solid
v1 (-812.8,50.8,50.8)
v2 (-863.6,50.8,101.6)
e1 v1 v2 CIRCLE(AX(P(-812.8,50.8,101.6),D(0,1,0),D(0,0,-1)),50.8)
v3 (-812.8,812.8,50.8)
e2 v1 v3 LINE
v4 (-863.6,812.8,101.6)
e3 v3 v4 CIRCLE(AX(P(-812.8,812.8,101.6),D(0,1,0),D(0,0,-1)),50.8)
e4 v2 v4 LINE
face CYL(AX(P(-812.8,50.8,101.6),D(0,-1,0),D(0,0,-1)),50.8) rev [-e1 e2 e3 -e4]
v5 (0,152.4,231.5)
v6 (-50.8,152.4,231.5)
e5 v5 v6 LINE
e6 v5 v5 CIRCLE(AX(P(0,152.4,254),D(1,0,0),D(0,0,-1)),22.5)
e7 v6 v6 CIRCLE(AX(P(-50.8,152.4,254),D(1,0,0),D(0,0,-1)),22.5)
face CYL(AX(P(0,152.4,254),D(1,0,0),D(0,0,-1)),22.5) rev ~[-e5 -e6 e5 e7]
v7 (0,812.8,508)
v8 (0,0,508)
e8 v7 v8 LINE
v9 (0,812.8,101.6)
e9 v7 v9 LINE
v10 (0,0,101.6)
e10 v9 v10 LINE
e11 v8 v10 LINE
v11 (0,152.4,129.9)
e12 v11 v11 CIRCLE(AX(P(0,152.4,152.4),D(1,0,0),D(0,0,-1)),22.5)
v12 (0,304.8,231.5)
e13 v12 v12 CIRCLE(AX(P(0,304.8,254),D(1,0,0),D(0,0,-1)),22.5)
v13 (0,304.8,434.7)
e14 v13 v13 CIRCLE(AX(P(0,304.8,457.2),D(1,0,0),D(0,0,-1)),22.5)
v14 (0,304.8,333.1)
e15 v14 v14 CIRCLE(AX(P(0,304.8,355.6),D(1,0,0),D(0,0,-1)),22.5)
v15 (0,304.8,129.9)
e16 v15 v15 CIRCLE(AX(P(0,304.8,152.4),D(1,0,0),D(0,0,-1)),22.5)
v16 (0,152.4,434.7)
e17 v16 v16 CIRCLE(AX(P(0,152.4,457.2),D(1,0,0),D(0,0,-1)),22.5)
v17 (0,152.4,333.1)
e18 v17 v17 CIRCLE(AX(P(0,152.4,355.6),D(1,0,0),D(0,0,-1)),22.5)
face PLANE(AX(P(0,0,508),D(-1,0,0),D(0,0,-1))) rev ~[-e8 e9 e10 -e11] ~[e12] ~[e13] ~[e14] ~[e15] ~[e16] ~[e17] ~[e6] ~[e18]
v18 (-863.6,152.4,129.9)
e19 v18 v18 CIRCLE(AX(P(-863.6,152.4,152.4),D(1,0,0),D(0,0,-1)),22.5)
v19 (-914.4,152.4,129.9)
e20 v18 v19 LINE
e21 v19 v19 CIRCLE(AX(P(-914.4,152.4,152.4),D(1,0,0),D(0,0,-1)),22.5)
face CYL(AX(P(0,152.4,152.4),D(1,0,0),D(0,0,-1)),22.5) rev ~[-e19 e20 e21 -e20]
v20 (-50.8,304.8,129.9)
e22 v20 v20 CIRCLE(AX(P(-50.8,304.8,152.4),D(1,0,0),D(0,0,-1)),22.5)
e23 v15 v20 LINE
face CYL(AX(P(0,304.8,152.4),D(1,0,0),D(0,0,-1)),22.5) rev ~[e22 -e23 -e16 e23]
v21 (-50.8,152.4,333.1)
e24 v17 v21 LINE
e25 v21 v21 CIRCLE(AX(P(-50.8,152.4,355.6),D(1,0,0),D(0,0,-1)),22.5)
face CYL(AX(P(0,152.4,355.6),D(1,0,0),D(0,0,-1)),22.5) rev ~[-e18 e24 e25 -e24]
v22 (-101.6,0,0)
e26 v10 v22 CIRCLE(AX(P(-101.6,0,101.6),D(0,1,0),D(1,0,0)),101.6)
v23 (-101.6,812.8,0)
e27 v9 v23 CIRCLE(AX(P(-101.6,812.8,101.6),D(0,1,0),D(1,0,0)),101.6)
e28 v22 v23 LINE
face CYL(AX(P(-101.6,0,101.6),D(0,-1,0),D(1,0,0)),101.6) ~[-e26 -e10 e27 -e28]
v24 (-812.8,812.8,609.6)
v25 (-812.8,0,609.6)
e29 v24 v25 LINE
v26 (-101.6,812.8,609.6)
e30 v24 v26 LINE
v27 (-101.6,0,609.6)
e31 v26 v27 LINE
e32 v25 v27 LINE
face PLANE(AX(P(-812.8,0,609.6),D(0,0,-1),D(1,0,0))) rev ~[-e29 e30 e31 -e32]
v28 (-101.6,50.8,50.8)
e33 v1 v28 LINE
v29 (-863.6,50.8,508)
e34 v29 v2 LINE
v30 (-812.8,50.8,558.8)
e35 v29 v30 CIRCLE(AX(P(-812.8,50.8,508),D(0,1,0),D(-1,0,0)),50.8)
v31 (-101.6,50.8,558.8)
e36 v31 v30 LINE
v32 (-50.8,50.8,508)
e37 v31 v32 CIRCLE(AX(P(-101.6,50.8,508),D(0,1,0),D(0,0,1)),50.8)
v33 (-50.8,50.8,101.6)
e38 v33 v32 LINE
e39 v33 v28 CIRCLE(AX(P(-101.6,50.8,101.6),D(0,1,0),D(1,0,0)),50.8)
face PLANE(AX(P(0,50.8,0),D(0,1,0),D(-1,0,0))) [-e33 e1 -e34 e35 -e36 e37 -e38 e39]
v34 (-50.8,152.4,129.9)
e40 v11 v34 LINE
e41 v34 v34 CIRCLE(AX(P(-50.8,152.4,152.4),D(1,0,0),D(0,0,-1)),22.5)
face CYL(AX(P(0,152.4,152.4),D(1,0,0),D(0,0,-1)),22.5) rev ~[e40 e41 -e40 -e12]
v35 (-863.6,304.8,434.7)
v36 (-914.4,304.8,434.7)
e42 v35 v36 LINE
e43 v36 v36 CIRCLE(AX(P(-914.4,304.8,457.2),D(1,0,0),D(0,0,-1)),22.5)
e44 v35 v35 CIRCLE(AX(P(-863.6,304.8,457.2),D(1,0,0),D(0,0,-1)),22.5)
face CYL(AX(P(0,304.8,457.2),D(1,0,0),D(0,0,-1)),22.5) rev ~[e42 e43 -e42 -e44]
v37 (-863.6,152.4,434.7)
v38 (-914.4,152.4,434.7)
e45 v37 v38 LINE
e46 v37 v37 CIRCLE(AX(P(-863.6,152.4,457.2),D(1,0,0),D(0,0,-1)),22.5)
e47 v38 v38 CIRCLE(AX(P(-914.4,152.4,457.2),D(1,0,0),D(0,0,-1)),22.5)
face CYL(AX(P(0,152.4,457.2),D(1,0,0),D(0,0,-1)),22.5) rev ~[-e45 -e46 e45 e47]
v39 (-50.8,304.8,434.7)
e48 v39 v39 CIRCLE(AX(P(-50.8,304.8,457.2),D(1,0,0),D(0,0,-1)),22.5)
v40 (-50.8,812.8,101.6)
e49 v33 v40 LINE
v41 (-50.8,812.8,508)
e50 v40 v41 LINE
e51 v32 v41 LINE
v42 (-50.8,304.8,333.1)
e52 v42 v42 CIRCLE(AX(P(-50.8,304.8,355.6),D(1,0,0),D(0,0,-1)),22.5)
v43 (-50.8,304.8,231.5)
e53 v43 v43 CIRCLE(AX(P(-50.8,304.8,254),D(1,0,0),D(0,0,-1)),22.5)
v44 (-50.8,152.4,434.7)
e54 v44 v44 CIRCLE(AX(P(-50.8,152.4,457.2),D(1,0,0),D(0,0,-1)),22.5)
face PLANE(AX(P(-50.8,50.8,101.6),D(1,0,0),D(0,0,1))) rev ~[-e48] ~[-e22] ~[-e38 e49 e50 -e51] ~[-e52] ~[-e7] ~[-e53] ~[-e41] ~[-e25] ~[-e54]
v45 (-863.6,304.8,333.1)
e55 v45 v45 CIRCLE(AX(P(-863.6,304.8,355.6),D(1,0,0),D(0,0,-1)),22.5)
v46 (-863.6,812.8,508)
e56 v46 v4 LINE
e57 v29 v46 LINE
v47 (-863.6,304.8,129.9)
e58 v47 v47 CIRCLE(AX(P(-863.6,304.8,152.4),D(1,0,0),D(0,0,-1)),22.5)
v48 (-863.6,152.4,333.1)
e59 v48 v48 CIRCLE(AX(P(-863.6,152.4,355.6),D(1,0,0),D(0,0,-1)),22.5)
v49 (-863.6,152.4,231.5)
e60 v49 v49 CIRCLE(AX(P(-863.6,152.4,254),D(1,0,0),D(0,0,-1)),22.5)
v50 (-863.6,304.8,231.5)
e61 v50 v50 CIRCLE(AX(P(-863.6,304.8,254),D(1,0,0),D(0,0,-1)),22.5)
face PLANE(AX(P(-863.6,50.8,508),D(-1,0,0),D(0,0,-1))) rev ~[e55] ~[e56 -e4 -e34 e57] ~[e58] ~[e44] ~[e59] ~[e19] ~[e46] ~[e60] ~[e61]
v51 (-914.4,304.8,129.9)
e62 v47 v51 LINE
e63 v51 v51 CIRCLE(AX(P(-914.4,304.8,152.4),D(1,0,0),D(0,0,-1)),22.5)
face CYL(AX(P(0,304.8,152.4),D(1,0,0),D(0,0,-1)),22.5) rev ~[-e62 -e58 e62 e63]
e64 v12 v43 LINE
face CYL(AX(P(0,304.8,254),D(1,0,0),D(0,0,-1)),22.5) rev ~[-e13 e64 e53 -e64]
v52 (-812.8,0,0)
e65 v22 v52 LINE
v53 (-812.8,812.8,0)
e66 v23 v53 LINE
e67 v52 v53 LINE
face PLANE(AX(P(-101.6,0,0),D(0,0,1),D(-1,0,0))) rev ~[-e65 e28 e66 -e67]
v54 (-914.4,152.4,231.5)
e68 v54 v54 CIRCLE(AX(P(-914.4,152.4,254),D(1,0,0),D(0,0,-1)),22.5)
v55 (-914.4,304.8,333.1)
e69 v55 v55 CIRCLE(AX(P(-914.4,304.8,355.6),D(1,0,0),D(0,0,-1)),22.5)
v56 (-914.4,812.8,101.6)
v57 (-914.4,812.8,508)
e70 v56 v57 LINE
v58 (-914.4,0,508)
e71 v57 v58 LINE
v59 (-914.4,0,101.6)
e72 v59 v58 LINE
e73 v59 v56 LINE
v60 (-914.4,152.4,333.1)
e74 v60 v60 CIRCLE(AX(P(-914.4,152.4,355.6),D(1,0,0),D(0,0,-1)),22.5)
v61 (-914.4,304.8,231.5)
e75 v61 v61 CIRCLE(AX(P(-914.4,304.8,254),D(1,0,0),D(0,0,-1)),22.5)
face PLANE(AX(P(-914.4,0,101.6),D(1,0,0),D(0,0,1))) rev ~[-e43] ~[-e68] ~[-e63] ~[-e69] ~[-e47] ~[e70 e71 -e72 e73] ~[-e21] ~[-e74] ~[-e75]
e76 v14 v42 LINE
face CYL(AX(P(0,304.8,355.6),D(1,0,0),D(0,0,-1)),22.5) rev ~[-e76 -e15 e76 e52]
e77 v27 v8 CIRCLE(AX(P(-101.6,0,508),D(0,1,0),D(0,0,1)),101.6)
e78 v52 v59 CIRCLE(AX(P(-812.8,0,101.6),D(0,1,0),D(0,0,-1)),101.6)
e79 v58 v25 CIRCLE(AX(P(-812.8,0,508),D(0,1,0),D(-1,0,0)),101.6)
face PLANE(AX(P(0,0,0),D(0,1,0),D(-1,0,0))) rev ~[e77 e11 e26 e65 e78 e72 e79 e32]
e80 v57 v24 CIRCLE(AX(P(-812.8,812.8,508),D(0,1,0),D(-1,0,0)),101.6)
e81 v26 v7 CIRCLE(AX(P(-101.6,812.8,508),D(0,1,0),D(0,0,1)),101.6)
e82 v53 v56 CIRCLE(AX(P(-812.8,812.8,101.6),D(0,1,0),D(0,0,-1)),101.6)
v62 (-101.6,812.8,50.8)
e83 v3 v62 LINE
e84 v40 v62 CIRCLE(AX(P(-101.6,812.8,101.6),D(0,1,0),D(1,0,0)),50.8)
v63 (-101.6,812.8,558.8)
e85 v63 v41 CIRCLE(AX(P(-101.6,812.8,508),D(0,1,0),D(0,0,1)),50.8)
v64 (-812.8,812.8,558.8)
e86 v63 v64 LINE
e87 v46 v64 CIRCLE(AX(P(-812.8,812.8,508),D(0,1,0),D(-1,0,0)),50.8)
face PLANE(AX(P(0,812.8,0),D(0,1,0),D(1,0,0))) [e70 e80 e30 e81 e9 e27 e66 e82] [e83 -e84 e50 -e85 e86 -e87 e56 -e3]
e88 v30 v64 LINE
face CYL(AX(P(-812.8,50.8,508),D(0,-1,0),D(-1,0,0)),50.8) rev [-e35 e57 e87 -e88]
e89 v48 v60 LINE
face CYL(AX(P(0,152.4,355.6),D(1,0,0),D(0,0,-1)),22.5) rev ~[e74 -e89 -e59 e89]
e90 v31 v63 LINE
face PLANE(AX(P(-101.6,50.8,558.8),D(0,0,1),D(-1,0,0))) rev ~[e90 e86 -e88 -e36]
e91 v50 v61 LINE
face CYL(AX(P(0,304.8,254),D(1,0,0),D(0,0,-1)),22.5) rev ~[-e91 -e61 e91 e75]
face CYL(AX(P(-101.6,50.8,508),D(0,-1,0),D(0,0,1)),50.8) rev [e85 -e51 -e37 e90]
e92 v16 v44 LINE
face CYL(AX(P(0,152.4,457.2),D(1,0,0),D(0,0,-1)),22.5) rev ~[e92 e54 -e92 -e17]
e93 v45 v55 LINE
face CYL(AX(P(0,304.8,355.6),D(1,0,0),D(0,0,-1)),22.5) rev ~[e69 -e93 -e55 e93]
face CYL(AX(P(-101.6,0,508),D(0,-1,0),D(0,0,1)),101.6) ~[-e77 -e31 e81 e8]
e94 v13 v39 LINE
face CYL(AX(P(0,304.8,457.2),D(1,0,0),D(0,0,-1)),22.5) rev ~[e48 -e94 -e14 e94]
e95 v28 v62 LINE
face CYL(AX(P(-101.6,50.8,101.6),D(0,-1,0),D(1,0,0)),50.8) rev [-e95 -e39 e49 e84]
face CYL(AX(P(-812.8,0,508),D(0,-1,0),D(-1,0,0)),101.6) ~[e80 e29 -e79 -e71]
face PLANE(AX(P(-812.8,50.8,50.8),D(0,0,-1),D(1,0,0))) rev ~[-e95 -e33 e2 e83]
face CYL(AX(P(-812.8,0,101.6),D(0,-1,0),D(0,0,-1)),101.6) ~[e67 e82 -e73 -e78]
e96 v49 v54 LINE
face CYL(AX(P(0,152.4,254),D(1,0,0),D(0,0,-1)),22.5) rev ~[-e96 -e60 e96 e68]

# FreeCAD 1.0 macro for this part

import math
import FreeCAD as App
import Part
import Sketcher

V = App.Vector
Q = App.Units.Quantity

doc = App.newDocument("Part")
body = doc.addObject("PartDesign::Body", "Body")

# Sketch on XZ plane
sketch1 = body.newObject("Sketcher::SketchObject", "Sketch")
sketch1.AttachmentSupport = (doc.getObject("XZ_Plane"), [""])
sketch1.MapMode = "FlatFace"
sketch1.addGeometry([
    Part.ArcOfCircle(Part.Circle(V(-102, 102, 0), V(0, 0, 1), 102), math.radians(-90), math.radians(0)),  # 0
    Part.LineSegment(V(-102, 0, 0), V(-813, 0, 0)),  # 1
    Part.ArcOfCircle(Part.Circle(V(-813, 102, 0), V(0, 0, 1), 102), math.radians(180), math.radians(270)),  # 2
    Part.LineSegment(V(-914, 102, 0), V(-914, 508, 0)),  # 3
    Part.ArcOfCircle(Part.Circle(V(-813, 508, 0), V(0, 0, 1), 102), math.radians(90), math.radians(180)),  # 4
    Part.LineSegment(V(-813, 610, 0), V(-102, 610, 0)),  # 5
    Part.ArcOfCircle(Part.Circle(V(-102, 508, 0), V(0, 0, 1), 102), math.radians(0), math.radians(90)),  # 6
    Part.LineSegment(V(0, 508, 0), V(0, 102, 0)),  # 7
], False)
sketch1.addConstraint([
    Sketcher.Constraint("Tangent", 0, 1, 1, 1),
    Sketcher.Constraint("Tangent", 1, 2, 2, 2),
    Sketcher.Constraint("Tangent", 2, 1, 3, 1),
    Sketcher.Constraint("Tangent", 3, 2, 4, 2),
    Sketcher.Constraint("Tangent", 4, 1, 5, 1),
    Sketcher.Constraint("Tangent", 5, 2, 6, 2),
    Sketcher.Constraint("Tangent", 6, 1, 7, 1),
    Sketcher.Constraint("Tangent", 7, 2, 0, 2),
    Sketcher.Constraint("Horizontal", 1),
    Sketcher.Constraint("Vertical", 3),
    Sketcher.Constraint("Horizontal", 5),
    Sketcher.Constraint("Vertical", 7),
    Sketcher.Constraint("Equal", 0, 2),
    Sketcher.Constraint("Equal", 2, 4),
    Sketcher.Constraint("Equal", 4, 6),
    Sketcher.Constraint("PointOnObject", 0, 1, -1),
    Sketcher.Constraint("PointOnObject", 6, 1, -2),
    Sketcher.Constraint("Radius", 0, Q("4 in")),
    Sketcher.Constraint("DistanceX", 2, 1, -1, 1, Q("36 in")),
    Sketcher.Constraint("DistanceY", -1, 1, 4, 1, Q("24 in")),
])
pad1 = body.newObject("PartDesign::Pad", "Pad")
pad1.Profile = sketch1
pad1.Length = Q("2 in")
pad1.Reversed = True

# Sketch on XZ plane
sketch2 = body.newObject("Sketcher::SketchObject", "Sketch001")
sketch2.AttachmentSupport = (doc.getObject("XZ_Plane"), [""])
sketch2.MapMode = "FlatFace"
sketch2.AttachmentOffset = App.Placement(V(0, 0, -2 * 25.4), App.Rotation())
sketch2.addGeometry([
    Part.ArcOfCircle(Part.Circle(V(-102, 508, 0), V(0, 0, 1), 102), math.radians(0), math.radians(90)),  # 0
    Part.LineSegment(V(0, 508, 0), V(0, 102, 0)),  # 1
    Part.ArcOfCircle(Part.Circle(V(-102, 102, 0), V(0, 0, 1), 102), math.radians(-90), math.radians(0)),  # 2
    Part.LineSegment(V(-102, 0, 0), V(-813, 0, 0)),  # 3
    Part.ArcOfCircle(Part.Circle(V(-813, 102, 0), V(0, 0, 1), 102), math.radians(180), math.radians(270)),  # 4
    Part.LineSegment(V(-914, 102, 0), V(-914, 508, 0)),  # 5
    Part.ArcOfCircle(Part.Circle(V(-813, 508, 0), V(0, 0, 1), 102), math.radians(90), math.radians(180)),  # 6
    Part.LineSegment(V(-813, 610, 0), V(-102, 610, 0)),  # 7
    Part.ArcOfCircle(Part.Circle(V(-813, 102, 0), V(0, 0, 1), 51), math.radians(180), math.radians(270)),  # 8
    Part.LineSegment(V(-813, 51, 0), V(-102, 51, 0)),  # 9
    Part.ArcOfCircle(Part.Circle(V(-102, 102, 0), V(0, 0, 1), 51), math.radians(-90), math.radians(0)),  # 10
    Part.LineSegment(V(-51, 102, 0), V(-51, 508, 0)),  # 11
    Part.ArcOfCircle(Part.Circle(V(-102, 508, 0), V(0, 0, 1), 51), math.radians(0), math.radians(90)),  # 12
    Part.LineSegment(V(-102, 559, 0), V(-813, 559, 0)),  # 13
    Part.ArcOfCircle(Part.Circle(V(-813, 508, 0), V(0, 0, 1), 51), math.radians(90), math.radians(180)),  # 14
    Part.LineSegment(V(-864, 508, 0), V(-864, 102, 0)),  # 15
], False)
sketch2.addConstraint([
    Sketcher.Constraint("Tangent", 0, 1, 1, 1),
    Sketcher.Constraint("Tangent", 1, 2, 2, 2),
    Sketcher.Constraint("Tangent", 2, 1, 3, 1),
    Sketcher.Constraint("Tangent", 3, 2, 4, 2),
    Sketcher.Constraint("Tangent", 4, 1, 5, 1),
    Sketcher.Constraint("Tangent", 5, 2, 6, 2),
    Sketcher.Constraint("Tangent", 6, 1, 7, 1),
    Sketcher.Constraint("Tangent", 7, 2, 0, 2),
    Sketcher.Constraint("Tangent", 8, 2, 9, 1),
    Sketcher.Constraint("Tangent", 9, 2, 10, 1),
    Sketcher.Constraint("Tangent", 10, 2, 11, 1),
    Sketcher.Constraint("Tangent", 11, 2, 12, 1),
    Sketcher.Constraint("Tangent", 12, 2, 13, 1),
    Sketcher.Constraint("Tangent", 13, 2, 14, 1),
    Sketcher.Constraint("Tangent", 14, 2, 15, 1),
    Sketcher.Constraint("Tangent", 15, 2, 8, 1),
    Sketcher.Constraint("Vertical", 1),
    Sketcher.Constraint("Horizontal", 3),
    Sketcher.Constraint("Vertical", 5),
    Sketcher.Constraint("Horizontal", 7),
    Sketcher.Constraint("Horizontal", 9),
    Sketcher.Constraint("Vertical", 11),
    Sketcher.Constraint("Horizontal", 13),
    Sketcher.Constraint("Vertical", 15),
    Sketcher.Constraint("Coincident", 8, 3, 4, 3),
    Sketcher.Constraint("Coincident", 10, 3, 2, 3),
    Sketcher.Constraint("Coincident", 12, 3, 0, 3),
    Sketcher.Constraint("Equal", 0, 2),
    Sketcher.Constraint("Equal", 2, 4),
    Sketcher.Constraint("Equal", 4, 6),
    Sketcher.Constraint("Equal", 12, 14),
    Sketcher.Constraint("PointOnObject", 0, 1, -2),
    Sketcher.Constraint("PointOnObject", 2, 1, -1),
    Sketcher.Constraint("Radius", 8, Q("2 in")),
    Sketcher.Constraint("DistanceY", -1, 1, 8, 2, Q("2 in")),
    Sketcher.Constraint("DistanceX", 3, 2, 3, 1, Q("28 in")),
    Sketcher.Constraint("DistanceY", 1, 2, 1, 1, Q("16 in")),
])
pad2 = body.newObject("PartDesign::Pad", "Pad001")
pad2.Profile = sketch2
pad2.Length = Q("30 in")
pad2.Reversed = True

# Sketch on YZ plane
sketch3 = body.newObject("Sketcher::SketchObject", "Sketch002")
sketch3.AttachmentSupport = (doc.getObject("YZ_Plane"), [""])
sketch3.MapMode = "FlatFace"
sketch3.addGeometry([
    Part.Circle(V(152, 457, 0), V(0, 0, 1), 22),  # 0
    Part.Circle(V(152, 356, 0), V(0, 0, 1), 22),  # 1
    Part.Circle(V(152, 254, 0), V(0, 0, 1), 22),  # 2
    Part.Circle(V(152, 152, 0), V(0, 0, 1), 22),  # 3
    Part.Circle(V(305, 457, 0), V(0, 0, 1), 22),  # 4
    Part.Circle(V(305, 356, 0), V(0, 0, 1), 22),  # 5
    Part.Circle(V(305, 254, 0), V(0, 0, 1), 22),  # 6
    Part.Circle(V(305, 152, 0), V(0, 0, 1), 22),  # 7
], False)
sketch3.addConstraint([
    Sketcher.Constraint("Equal", 0, 1),
    Sketcher.Constraint("Equal", 1, 2),
    Sketcher.Constraint("Equal", 2, 3),
    Sketcher.Constraint("Equal", 3, 4),
    Sketcher.Constraint("Equal", 4, 5),
    Sketcher.Constraint("Equal", 5, 6),
    Sketcher.Constraint("Equal", 6, 7),
    Sketcher.Constraint("Horizontal", 0, 3, 4, 3),
    Sketcher.Constraint("Horizontal", 1, 3, 5, 3),
    Sketcher.Constraint("Horizontal", 2, 3, 6, 3),
    Sketcher.Constraint("Horizontal", 3, 3, 7, 3),
    Sketcher.Constraint("Vertical", 0, 3, 1, 3),
    Sketcher.Constraint("Vertical", 1, 3, 2, 3),
    Sketcher.Constraint("Vertical", 2, 3, 3, 3),
    Sketcher.Constraint("Vertical", 4, 3, 5, 3),
    Sketcher.Constraint("Vertical", 5, 3, 6, 3),
    Sketcher.Constraint("Vertical", 6, 3, 7, 3),
    Sketcher.Constraint("DistanceX", -1, 1, 0, 3, Q("6 in")),
    Sketcher.Constraint("DistanceY", -1, 1, 3, 3, Q("6 in")),
    Sketcher.Constraint("DistanceY", 1, 3, 0, 3, Q("4 in")),
    Sketcher.Constraint("DistanceY", 2, 3, 1, 3, Q("4 in")),
    Sketcher.Constraint("DistanceY", 3, 3, 2, 3, Q("4 in")),
    Sketcher.Constraint("DistanceX", 0, 3, 4, 3, Q("6 in")),
    Sketcher.Constraint("Diameter", 0, 45.0),
])
pocket1 = body.newObject("PartDesign::Pocket", "Pocket")
pocket1.Profile = sketch3
pocket1.Type = "ThroughAll"

doc.recompute()
